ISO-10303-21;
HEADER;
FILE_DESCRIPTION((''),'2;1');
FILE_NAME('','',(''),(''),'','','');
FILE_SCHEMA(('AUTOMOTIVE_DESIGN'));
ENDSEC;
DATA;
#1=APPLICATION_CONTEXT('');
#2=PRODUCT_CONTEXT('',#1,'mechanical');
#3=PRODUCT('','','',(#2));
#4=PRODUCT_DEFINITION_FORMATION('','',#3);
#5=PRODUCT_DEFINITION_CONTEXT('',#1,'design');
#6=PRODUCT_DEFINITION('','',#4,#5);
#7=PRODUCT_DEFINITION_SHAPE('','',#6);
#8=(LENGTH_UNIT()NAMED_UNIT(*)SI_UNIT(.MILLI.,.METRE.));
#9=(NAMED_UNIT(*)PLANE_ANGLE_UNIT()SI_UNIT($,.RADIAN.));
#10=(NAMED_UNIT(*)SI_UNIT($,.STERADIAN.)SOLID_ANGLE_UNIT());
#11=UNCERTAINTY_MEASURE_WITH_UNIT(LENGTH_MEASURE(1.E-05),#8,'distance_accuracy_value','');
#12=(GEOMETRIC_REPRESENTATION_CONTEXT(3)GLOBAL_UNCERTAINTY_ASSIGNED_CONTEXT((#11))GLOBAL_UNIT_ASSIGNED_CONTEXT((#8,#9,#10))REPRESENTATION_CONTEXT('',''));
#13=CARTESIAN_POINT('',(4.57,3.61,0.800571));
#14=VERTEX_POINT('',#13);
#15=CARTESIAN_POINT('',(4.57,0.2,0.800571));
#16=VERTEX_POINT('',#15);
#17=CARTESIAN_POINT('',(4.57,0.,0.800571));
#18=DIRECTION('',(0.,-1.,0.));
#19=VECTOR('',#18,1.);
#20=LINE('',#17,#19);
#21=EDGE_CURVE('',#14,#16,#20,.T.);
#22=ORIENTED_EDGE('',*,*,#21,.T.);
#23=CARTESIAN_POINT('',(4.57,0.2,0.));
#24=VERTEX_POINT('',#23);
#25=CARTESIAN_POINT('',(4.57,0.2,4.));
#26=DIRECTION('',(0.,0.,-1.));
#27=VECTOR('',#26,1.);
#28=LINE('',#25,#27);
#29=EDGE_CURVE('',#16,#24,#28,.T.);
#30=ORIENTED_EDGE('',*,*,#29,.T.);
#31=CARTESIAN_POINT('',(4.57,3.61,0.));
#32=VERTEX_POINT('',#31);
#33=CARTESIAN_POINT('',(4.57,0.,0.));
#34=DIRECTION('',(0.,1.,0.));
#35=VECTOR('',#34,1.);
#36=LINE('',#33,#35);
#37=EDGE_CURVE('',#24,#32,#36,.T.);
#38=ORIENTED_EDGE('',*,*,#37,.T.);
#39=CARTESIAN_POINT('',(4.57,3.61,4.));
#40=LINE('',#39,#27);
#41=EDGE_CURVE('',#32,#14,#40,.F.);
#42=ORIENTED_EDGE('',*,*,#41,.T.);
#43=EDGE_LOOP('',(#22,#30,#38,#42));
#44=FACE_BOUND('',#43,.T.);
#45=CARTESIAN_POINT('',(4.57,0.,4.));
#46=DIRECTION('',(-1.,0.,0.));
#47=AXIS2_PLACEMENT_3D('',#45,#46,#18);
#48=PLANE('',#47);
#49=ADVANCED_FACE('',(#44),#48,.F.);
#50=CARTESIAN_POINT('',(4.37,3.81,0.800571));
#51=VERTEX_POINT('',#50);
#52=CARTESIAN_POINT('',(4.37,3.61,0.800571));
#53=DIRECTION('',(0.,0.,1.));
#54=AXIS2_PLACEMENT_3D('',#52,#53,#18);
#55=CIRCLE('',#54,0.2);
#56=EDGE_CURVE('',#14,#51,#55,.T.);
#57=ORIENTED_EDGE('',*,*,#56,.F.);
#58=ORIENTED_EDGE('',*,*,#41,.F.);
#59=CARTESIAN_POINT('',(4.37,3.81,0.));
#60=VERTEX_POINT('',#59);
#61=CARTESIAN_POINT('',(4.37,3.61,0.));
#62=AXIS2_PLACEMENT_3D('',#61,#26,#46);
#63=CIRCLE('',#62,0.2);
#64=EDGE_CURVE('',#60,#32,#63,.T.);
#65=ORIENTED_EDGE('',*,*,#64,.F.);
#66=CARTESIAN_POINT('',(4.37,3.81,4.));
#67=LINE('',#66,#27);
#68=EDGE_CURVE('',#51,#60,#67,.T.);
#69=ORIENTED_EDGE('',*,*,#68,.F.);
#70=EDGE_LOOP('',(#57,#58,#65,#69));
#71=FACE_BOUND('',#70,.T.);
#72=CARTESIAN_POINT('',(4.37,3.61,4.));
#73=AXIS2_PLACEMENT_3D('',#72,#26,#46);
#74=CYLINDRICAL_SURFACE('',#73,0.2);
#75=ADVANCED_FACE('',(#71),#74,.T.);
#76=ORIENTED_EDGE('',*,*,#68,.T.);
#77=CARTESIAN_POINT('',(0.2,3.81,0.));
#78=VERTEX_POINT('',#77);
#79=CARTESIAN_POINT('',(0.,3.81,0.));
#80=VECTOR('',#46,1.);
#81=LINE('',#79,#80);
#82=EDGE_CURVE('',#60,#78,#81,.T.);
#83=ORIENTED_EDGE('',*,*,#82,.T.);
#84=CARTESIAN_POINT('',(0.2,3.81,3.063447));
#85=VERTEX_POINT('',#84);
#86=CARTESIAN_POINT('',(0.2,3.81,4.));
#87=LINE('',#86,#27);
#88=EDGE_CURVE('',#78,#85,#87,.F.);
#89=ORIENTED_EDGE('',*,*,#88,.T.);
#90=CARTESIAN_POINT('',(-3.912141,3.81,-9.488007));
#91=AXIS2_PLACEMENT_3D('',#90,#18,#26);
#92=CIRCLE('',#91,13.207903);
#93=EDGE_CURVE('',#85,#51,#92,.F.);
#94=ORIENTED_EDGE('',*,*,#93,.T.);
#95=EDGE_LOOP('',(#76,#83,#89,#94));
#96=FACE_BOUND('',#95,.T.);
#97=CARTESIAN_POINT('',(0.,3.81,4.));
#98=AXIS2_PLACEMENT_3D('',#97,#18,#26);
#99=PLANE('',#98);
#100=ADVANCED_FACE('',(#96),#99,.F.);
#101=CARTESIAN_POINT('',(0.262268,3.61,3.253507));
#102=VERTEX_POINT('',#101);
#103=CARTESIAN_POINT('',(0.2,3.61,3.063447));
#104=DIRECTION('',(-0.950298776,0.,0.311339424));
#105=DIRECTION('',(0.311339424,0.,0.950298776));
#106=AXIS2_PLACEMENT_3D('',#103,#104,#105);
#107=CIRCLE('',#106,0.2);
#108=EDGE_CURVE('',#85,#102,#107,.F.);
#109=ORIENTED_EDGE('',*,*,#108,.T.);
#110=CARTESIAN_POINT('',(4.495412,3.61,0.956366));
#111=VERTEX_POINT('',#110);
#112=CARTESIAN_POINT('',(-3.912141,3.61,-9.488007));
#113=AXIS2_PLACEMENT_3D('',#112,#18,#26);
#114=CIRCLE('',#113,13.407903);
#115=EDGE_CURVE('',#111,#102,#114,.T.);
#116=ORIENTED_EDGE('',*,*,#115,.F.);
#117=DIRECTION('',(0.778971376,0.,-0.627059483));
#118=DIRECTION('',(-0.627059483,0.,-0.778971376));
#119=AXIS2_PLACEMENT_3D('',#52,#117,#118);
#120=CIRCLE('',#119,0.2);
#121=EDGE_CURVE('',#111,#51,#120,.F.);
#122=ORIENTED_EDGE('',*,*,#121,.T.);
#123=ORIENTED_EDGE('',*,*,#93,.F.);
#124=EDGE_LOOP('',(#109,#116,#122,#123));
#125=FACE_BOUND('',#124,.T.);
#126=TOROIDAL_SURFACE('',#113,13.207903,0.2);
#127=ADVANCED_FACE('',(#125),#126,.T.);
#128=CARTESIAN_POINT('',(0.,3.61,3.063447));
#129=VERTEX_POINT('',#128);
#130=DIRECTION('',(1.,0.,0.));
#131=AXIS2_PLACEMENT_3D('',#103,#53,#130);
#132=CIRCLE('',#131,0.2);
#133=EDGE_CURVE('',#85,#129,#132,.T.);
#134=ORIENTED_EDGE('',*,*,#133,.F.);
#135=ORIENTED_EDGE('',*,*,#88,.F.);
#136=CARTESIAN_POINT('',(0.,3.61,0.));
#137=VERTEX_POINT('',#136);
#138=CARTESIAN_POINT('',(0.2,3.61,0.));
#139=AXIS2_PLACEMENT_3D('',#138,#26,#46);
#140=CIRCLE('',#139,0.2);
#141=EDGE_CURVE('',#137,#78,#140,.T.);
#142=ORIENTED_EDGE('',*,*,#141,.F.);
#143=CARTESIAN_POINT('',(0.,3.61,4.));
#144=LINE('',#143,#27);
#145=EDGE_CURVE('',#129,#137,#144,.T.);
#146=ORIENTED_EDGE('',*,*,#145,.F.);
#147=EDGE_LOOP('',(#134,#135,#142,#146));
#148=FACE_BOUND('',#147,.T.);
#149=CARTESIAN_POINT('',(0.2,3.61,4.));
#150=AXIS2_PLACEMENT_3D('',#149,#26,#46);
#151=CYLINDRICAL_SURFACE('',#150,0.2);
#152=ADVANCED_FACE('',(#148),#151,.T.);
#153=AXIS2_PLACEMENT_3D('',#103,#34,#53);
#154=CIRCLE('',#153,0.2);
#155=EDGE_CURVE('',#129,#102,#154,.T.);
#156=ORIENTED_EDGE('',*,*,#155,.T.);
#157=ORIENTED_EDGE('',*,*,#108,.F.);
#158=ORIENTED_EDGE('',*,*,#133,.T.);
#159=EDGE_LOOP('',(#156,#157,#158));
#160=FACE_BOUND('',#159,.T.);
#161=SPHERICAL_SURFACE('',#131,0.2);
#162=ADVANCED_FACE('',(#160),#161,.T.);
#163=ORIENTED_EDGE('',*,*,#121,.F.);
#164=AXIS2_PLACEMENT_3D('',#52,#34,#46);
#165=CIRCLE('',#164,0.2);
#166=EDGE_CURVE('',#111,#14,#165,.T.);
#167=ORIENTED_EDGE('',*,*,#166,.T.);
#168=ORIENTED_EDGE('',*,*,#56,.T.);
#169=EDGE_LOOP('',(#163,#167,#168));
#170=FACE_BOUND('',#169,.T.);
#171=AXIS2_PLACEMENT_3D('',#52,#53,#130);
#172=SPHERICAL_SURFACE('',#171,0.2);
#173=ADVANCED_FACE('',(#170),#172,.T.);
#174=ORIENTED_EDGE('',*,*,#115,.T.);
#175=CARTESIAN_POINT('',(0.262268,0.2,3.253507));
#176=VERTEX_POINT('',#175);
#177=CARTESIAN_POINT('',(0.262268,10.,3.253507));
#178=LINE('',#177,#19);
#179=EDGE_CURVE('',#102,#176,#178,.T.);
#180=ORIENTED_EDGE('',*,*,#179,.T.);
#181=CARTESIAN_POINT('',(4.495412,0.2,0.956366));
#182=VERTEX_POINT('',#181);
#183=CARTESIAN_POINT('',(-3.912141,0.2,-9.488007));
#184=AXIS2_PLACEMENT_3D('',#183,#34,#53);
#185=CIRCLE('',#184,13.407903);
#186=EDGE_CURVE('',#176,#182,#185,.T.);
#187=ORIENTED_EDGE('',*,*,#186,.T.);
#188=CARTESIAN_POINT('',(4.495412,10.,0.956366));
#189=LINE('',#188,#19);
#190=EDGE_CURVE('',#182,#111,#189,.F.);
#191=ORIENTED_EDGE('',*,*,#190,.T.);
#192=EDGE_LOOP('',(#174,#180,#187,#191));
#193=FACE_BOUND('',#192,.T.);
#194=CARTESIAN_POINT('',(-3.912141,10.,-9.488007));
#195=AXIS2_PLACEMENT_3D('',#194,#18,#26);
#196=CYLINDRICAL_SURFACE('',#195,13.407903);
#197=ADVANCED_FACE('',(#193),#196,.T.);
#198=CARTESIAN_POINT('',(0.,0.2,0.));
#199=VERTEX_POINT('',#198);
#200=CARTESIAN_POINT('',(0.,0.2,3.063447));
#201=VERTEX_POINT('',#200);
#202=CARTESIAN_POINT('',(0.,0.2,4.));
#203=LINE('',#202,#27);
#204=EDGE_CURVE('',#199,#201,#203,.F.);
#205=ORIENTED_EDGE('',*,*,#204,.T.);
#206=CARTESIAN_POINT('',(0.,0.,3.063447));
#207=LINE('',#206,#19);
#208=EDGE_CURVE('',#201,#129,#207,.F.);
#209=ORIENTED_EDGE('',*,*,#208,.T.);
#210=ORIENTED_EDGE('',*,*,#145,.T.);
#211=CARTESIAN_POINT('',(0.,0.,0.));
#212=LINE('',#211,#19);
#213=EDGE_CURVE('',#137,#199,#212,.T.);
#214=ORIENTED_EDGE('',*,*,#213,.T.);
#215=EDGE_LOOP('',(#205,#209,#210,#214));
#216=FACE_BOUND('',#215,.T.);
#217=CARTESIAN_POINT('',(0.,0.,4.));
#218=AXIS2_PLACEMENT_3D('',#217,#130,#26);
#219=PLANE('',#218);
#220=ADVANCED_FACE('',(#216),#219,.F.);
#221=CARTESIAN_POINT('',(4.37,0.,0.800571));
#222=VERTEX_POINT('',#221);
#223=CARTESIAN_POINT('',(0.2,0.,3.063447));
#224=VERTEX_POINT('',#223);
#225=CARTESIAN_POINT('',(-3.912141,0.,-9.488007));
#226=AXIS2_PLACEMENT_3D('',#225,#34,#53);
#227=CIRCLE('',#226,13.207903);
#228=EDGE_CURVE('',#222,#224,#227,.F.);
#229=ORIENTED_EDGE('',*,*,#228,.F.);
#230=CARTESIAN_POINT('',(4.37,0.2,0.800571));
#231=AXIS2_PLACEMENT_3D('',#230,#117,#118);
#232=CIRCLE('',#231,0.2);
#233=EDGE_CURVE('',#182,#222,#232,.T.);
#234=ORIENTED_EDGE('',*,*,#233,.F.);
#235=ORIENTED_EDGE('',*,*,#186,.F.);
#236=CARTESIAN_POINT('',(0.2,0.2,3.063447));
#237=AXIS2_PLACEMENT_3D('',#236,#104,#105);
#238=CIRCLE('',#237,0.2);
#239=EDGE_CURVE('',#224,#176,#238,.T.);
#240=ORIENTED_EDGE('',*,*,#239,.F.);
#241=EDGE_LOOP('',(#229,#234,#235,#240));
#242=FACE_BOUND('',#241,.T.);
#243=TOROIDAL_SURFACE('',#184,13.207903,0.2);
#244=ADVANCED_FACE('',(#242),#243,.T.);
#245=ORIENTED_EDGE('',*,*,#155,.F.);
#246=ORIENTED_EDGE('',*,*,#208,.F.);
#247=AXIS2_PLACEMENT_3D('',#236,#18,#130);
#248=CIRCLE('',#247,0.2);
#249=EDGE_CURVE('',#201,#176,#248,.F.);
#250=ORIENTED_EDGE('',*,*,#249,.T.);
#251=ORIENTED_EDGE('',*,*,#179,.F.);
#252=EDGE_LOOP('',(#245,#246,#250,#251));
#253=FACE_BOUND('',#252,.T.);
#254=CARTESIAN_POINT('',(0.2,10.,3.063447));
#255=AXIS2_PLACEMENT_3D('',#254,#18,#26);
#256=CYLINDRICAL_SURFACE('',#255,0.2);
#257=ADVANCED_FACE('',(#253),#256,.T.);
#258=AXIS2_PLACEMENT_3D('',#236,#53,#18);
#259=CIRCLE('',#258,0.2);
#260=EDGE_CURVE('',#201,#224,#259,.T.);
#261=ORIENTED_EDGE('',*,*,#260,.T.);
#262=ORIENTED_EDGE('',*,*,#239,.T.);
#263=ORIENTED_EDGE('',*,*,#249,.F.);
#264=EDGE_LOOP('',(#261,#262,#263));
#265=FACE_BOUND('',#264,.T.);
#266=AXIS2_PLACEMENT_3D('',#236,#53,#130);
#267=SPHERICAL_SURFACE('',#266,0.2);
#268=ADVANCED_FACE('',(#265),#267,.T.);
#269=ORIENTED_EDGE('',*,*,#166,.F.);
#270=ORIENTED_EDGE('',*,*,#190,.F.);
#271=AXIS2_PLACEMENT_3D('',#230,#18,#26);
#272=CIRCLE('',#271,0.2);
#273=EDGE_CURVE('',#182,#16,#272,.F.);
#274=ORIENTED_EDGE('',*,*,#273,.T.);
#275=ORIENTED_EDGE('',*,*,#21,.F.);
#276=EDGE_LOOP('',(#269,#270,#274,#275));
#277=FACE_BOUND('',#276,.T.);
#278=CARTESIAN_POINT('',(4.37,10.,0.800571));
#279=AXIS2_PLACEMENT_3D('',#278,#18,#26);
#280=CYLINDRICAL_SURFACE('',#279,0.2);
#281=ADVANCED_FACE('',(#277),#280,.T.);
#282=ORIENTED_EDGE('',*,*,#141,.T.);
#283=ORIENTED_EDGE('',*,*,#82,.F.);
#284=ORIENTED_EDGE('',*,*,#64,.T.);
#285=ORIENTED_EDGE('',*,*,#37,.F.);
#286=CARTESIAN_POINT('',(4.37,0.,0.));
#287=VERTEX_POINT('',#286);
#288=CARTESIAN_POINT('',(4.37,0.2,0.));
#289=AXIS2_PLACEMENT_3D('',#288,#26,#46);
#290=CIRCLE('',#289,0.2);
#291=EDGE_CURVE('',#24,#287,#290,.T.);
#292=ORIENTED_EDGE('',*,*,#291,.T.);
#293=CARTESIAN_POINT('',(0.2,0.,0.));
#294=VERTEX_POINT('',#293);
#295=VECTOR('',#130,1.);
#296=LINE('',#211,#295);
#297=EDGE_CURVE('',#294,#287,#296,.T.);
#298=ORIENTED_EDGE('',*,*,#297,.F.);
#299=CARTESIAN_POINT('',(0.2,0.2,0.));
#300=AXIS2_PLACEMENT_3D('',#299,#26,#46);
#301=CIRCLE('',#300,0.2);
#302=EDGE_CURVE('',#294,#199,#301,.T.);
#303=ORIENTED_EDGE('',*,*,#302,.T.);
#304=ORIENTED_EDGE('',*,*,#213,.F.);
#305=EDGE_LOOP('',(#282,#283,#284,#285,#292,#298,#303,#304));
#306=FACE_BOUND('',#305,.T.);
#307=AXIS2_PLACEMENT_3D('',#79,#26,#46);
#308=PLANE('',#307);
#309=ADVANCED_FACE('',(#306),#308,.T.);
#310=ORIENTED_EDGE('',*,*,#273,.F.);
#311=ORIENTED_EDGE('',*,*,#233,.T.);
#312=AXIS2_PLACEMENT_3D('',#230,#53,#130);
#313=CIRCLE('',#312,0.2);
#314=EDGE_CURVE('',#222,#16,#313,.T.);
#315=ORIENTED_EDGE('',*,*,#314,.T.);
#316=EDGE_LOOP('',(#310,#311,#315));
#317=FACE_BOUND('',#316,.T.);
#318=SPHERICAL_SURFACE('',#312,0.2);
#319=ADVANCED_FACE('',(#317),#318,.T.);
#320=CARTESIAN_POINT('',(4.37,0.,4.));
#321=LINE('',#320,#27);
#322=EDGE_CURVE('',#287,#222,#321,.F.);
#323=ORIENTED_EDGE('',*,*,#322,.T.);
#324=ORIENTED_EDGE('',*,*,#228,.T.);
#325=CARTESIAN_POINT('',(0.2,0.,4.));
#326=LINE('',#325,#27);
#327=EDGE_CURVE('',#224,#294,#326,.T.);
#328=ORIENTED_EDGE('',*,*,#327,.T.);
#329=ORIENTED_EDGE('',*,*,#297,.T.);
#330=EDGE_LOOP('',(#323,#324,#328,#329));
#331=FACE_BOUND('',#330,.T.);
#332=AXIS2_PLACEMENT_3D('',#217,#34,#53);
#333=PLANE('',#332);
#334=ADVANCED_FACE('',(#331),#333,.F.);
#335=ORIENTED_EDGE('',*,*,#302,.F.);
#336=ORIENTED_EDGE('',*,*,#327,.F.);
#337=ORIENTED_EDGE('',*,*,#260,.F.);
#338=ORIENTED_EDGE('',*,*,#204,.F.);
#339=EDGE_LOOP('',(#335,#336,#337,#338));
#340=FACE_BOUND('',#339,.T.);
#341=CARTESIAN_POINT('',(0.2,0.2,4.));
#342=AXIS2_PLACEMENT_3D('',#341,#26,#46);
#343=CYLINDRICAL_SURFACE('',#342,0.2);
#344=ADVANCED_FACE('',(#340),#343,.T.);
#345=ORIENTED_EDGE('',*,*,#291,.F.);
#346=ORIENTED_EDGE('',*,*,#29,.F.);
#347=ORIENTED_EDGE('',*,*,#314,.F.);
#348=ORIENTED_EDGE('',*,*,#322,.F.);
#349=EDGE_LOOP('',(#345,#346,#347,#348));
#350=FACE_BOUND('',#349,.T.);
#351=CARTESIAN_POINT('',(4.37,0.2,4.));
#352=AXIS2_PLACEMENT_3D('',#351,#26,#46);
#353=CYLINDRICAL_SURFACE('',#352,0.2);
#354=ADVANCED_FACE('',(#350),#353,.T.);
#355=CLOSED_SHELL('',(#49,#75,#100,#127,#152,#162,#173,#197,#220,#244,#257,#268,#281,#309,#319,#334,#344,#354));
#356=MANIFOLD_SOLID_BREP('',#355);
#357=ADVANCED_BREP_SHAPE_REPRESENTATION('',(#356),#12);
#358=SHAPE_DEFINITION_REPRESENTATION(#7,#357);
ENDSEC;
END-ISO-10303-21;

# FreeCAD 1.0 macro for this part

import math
import FreeCAD as App
import Part
import Sketcher
from FreeCAD import Vector
Q = App.Units.Quantity


def edges_at(feature, points):
    """Names of the edges that pass closest to the given points."""
    edges = feature.Shape.Edges
    near = lambda p: min(range(len(edges)), key=lambda i: edges[i].distToShape(Part.Vertex(*p))[0])
    return sorted({f"Edge{near(p) + 1}" for p in points})

doc = App.newDocument("Part")
body = doc.addObject("PartDesign::Body", "Body")

# Sketch on XY plane
sketch1 = body.newObject("Sketcher::SketchObject", "Sketch")
sketch1.AttachmentSupport = (doc.getObject("XY_Plane"), [""])
sketch1.MapMode = "FlatFace"
sketch1.addGeometry(Part.LineSegment(Vector(0, 3.8, 0), Vector(0, 0, 0)), False)
sketch1.addGeometry(Part.LineSegment(Vector(0, 0, 0), Vector(4.6, 0, 0)), False)
sketch1.addGeometry(Part.LineSegment(Vector(4.6, 0, 0), Vector(4.6, 3.8, 0)), False)
sketch1.addGeometry(Part.LineSegment(Vector(4.6, 3.8, 0), Vector(0, 3.8, 0)), False)
sketch1.addConstraint(Sketcher.Constraint("Coincident", 0, 2, 1, 1))
sketch1.addConstraint(Sketcher.Constraint("Coincident", 1, 2, 2, 1))
sketch1.addConstraint(Sketcher.Constraint("Coincident", 2, 2, 3, 1))
sketch1.addConstraint(Sketcher.Constraint("Coincident", 3, 2, 0, 1))
sketch1.addConstraint(Sketcher.Constraint("Vertical", 0))
sketch1.addConstraint(Sketcher.Constraint("Horizontal", 1))
sketch1.addConstraint(Sketcher.Constraint("Vertical", 2))
sketch1.addConstraint(Sketcher.Constraint("Horizontal", 3))
sketch1.addConstraint(Sketcher.Constraint("Coincident", 0, 2, -1, 1))
sketch1.addConstraint(Sketcher.Constraint("DistanceX", 1, 1, 1, 2, Q("4.57 mm")))
sketch1.addConstraint(Sketcher.Constraint("DistanceY", 0, 2, 0, 1, Q("3.81 mm")))
pad1 = body.newObject("PartDesign::Pad", "Pad")
pad1.Profile = sketch1
pad1.Length = 4

# Sketch on XZ plane
sketch2 = body.newObject("Sketcher::SketchObject", "Sketch001")
sketch2.AttachmentSupport = (doc.getObject("XZ_Plane"), [""])
sketch2.MapMode = "FlatFace"
sketch2.addGeometry(Part.ArcOfCircle(Part.Circle(Vector(-3.9, -9.5, 0), Vector(0, 0, 1), 13.4), math.radians(51), math.radians(73)), False)
sketch2.addGeometry(Part.LineSegment(Vector(4.6, 0.9, 0), Vector(4.6, 4, 0)), False)
sketch2.addGeometry(Part.LineSegment(Vector(4.6, 4, 0), Vector(0, 4, 0)), False)
sketch2.addGeometry(Part.LineSegment(Vector(0, 4, 0), Vector(0, 3.3, 0)), False)
sketch2.addConstraint(Sketcher.Constraint("Coincident", 0, 1, 1, 1))
sketch2.addConstraint(Sketcher.Constraint("Coincident", 1, 2, 2, 1))
sketch2.addConstraint(Sketcher.Constraint("Coincident", 2, 2, 3, 1))
sketch2.addConstraint(Sketcher.Constraint("Coincident", 3, 2, 0, 2))
sketch2.addConstraint(Sketcher.Constraint("Vertical", 1))
sketch2.addConstraint(Sketcher.Constraint("Horizontal", 2))
sketch2.addConstraint(Sketcher.Constraint("Vertical", 3))
sketch2.addConstraint(Sketcher.Constraint("PointOnObject", 2, 2, -2))
sketch2.addConstraint(Sketcher.Constraint("DistanceY", -1, 1, 1, 2, Q("4 mm")))
sketch2.addConstraint(Sketcher.Constraint("DistanceX", 2, 2, 2, 1, Q("4.57 mm")))
sketch2.addConstraint(Sketcher.Constraint("Radius", 0, Q("13.407903 mm")))
sketch2.addConstraint(Sketcher.Constraint("DistanceY", 1, 1, 1, 2, Q("3.104118 mm")))
sketch2.addConstraint(Sketcher.Constraint("DistanceY", 3, 2, 3, 1, Q("0.663538 mm")))
pocket1 = body.newObject("PartDesign::Pocket", "Pocket")
pocket1.Profile = sketch2
pocket1.Length = 10
doc.recompute()

fillet = body.newObject("PartDesign::Fillet", "Fillet")
fillet.Base = (pocket1, edges_at(pocket1, [
    (0, 3.81, 1.668),
    (4.57, 3.81, 0.448),
    (2.404, 3.81, 2.339),
    (4.57, 0, 0.448),
    (0, 0, 1.668),
    (4.57, 1.905, 0.896),
    (0, 1.905, 3.336),
    (2.404, 0, 2.339),
]))
fillet.Radius = 0.2

doc.recompute()
